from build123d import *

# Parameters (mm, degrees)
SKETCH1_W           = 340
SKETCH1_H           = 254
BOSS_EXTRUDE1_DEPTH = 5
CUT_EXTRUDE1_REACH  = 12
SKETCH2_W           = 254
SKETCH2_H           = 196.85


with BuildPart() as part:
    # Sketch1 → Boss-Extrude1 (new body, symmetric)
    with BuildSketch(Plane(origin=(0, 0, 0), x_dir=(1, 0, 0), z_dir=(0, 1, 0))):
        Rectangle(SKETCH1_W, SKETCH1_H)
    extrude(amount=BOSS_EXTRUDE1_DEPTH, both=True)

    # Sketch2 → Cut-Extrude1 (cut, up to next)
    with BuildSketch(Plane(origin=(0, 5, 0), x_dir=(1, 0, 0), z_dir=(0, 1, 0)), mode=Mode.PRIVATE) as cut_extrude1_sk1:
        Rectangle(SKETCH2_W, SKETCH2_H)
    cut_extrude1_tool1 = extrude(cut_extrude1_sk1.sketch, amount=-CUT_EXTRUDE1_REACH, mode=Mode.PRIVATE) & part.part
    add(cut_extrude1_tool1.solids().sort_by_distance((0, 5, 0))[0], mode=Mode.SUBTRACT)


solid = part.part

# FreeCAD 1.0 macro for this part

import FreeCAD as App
import Part
import Sketcher
from FreeCAD import Vector

doc = App.newDocument("Part")
params = doc.addObject("Spreadsheet::Sheet", "Params")
for row, (alias, value) in enumerate([
    ("sketch1_width", "340 mm"),
    ("sketch1_height", "254 mm"),
    ("pad1_length", "10 mm"),
    ("sketch2_width", "254 mm"),
    ("sketch2_height", "196.85 mm"),
], start=1):
    params.set(f"A{row}", alias)
    params.set(f"B{row}", "=" + value)
    params.setAlias(f"B{row}", alias)

body = doc.addObject("PartDesign::Body", "Body")

# Sketch on XZ plane
sketch1 = doc.addObject("Sketcher::SketchObject", "Sketch")
body.addObject(sketch1)
sketch1.AttachmentSupport = (doc.XZ_Plane, [""])
sketch1.MapMode = "FlatFace"
sketch1.addGeometry([
    Part.LineSegment(Vector(-170, -127, 0), Vector(-170, 127, 0)),
    Part.LineSegment(Vector(-170, 127, 0), Vector(170, 127, 0)),
    Part.LineSegment(Vector(170, 127, 0), Vector(170, -127, 0)),
    Part.LineSegment(Vector(170, -127, 0), Vector(-170, -127, 0)),
], False)
sketch1.addConstraint([
    Sketcher.Constraint("Coincident", 0, 2, 1, 1),
    Sketcher.Constraint("Coincident", 1, 2, 2, 1),
    Sketcher.Constraint("Coincident", 2, 2, 3, 1),
    Sketcher.Constraint("Coincident", 3, 2, 0, 1),
    Sketcher.Constraint("Vertical", 0),
    Sketcher.Constraint("Horizontal", 1),
    Sketcher.Constraint("Vertical", 2),
    Sketcher.Constraint("Horizontal", 3),
    Sketcher.Constraint("Symmetric", 0, 2, 2, 2, -1, 1),
    Sketcher.Constraint("DistanceX", 1, 1, 1, 2, 340.0),
    Sketcher.Constraint("DistanceY", 0, 1, 0, 2, 254.0),
])
sketch1.setExpression("Constraints[9]", "Params.sketch1_width")
sketch1.setExpression("Constraints[10]", "Params.sketch1_height")
pad1 = doc.addObject("PartDesign::Pad", "Pad")
body.addObject(pad1)
pad1.Profile = sketch1
pad1.setExpression("Length", "Params.pad1_length")
pad1.Midplane = True

# Sketch on XZ plane
sketch2 = doc.addObject("Sketcher::SketchObject", "Sketch001")
body.addObject(sketch2)
sketch2.AttachmentSupport = (doc.XZ_Plane, [""])
sketch2.MapMode = "FlatFace"
sketch2.AttachmentOffset = App.Placement(Vector(0, 0, -5), App.Rotation())
sketch2.addGeometry([
    Part.LineSegment(Vector(-127, -98, 0), Vector(-127, 98, 0)),
    Part.LineSegment(Vector(-127, 98, 0), Vector(127, 98, 0)),
    Part.LineSegment(Vector(127, 98, 0), Vector(127, -98, 0)),
    Part.LineSegment(Vector(127, -98, 0), Vector(-127, -98, 0)),
], False)
sketch2.addConstraint([
    Sketcher.Constraint("Coincident", 0, 2, 1, 1),
    Sketcher.Constraint("Coincident", 1, 2, 2, 1),
    Sketcher.Constraint("Coincident", 2, 2, 3, 1),
    Sketcher.Constraint("Coincident", 3, 2, 0, 1),
    Sketcher.Constraint("Vertical", 0),
    Sketcher.Constraint("Horizontal", 1),
    Sketcher.Constraint("Vertical", 2),
    Sketcher.Constraint("Horizontal", 3),
    Sketcher.Constraint("Symmetric", 0, 2, 2, 2, -1, 1),
    Sketcher.Constraint("DistanceX", 1, 1, 1, 2, 254.0),
    Sketcher.Constraint("DistanceY", 0, 1, 0, 2, 196.85),
])
sketch2.setExpression("Constraints[9]", "Params.sketch2_width")
sketch2.setExpression("Constraints[10]", "Params.sketch2_height")
pocket1 = doc.addObject("PartDesign::Pocket", "Pocket")
body.addObject(pocket1)
pocket1.Profile = sketch2
pocket1.Type = "UpToFirst"
pocket1.Reversed = True

doc.recompute()
